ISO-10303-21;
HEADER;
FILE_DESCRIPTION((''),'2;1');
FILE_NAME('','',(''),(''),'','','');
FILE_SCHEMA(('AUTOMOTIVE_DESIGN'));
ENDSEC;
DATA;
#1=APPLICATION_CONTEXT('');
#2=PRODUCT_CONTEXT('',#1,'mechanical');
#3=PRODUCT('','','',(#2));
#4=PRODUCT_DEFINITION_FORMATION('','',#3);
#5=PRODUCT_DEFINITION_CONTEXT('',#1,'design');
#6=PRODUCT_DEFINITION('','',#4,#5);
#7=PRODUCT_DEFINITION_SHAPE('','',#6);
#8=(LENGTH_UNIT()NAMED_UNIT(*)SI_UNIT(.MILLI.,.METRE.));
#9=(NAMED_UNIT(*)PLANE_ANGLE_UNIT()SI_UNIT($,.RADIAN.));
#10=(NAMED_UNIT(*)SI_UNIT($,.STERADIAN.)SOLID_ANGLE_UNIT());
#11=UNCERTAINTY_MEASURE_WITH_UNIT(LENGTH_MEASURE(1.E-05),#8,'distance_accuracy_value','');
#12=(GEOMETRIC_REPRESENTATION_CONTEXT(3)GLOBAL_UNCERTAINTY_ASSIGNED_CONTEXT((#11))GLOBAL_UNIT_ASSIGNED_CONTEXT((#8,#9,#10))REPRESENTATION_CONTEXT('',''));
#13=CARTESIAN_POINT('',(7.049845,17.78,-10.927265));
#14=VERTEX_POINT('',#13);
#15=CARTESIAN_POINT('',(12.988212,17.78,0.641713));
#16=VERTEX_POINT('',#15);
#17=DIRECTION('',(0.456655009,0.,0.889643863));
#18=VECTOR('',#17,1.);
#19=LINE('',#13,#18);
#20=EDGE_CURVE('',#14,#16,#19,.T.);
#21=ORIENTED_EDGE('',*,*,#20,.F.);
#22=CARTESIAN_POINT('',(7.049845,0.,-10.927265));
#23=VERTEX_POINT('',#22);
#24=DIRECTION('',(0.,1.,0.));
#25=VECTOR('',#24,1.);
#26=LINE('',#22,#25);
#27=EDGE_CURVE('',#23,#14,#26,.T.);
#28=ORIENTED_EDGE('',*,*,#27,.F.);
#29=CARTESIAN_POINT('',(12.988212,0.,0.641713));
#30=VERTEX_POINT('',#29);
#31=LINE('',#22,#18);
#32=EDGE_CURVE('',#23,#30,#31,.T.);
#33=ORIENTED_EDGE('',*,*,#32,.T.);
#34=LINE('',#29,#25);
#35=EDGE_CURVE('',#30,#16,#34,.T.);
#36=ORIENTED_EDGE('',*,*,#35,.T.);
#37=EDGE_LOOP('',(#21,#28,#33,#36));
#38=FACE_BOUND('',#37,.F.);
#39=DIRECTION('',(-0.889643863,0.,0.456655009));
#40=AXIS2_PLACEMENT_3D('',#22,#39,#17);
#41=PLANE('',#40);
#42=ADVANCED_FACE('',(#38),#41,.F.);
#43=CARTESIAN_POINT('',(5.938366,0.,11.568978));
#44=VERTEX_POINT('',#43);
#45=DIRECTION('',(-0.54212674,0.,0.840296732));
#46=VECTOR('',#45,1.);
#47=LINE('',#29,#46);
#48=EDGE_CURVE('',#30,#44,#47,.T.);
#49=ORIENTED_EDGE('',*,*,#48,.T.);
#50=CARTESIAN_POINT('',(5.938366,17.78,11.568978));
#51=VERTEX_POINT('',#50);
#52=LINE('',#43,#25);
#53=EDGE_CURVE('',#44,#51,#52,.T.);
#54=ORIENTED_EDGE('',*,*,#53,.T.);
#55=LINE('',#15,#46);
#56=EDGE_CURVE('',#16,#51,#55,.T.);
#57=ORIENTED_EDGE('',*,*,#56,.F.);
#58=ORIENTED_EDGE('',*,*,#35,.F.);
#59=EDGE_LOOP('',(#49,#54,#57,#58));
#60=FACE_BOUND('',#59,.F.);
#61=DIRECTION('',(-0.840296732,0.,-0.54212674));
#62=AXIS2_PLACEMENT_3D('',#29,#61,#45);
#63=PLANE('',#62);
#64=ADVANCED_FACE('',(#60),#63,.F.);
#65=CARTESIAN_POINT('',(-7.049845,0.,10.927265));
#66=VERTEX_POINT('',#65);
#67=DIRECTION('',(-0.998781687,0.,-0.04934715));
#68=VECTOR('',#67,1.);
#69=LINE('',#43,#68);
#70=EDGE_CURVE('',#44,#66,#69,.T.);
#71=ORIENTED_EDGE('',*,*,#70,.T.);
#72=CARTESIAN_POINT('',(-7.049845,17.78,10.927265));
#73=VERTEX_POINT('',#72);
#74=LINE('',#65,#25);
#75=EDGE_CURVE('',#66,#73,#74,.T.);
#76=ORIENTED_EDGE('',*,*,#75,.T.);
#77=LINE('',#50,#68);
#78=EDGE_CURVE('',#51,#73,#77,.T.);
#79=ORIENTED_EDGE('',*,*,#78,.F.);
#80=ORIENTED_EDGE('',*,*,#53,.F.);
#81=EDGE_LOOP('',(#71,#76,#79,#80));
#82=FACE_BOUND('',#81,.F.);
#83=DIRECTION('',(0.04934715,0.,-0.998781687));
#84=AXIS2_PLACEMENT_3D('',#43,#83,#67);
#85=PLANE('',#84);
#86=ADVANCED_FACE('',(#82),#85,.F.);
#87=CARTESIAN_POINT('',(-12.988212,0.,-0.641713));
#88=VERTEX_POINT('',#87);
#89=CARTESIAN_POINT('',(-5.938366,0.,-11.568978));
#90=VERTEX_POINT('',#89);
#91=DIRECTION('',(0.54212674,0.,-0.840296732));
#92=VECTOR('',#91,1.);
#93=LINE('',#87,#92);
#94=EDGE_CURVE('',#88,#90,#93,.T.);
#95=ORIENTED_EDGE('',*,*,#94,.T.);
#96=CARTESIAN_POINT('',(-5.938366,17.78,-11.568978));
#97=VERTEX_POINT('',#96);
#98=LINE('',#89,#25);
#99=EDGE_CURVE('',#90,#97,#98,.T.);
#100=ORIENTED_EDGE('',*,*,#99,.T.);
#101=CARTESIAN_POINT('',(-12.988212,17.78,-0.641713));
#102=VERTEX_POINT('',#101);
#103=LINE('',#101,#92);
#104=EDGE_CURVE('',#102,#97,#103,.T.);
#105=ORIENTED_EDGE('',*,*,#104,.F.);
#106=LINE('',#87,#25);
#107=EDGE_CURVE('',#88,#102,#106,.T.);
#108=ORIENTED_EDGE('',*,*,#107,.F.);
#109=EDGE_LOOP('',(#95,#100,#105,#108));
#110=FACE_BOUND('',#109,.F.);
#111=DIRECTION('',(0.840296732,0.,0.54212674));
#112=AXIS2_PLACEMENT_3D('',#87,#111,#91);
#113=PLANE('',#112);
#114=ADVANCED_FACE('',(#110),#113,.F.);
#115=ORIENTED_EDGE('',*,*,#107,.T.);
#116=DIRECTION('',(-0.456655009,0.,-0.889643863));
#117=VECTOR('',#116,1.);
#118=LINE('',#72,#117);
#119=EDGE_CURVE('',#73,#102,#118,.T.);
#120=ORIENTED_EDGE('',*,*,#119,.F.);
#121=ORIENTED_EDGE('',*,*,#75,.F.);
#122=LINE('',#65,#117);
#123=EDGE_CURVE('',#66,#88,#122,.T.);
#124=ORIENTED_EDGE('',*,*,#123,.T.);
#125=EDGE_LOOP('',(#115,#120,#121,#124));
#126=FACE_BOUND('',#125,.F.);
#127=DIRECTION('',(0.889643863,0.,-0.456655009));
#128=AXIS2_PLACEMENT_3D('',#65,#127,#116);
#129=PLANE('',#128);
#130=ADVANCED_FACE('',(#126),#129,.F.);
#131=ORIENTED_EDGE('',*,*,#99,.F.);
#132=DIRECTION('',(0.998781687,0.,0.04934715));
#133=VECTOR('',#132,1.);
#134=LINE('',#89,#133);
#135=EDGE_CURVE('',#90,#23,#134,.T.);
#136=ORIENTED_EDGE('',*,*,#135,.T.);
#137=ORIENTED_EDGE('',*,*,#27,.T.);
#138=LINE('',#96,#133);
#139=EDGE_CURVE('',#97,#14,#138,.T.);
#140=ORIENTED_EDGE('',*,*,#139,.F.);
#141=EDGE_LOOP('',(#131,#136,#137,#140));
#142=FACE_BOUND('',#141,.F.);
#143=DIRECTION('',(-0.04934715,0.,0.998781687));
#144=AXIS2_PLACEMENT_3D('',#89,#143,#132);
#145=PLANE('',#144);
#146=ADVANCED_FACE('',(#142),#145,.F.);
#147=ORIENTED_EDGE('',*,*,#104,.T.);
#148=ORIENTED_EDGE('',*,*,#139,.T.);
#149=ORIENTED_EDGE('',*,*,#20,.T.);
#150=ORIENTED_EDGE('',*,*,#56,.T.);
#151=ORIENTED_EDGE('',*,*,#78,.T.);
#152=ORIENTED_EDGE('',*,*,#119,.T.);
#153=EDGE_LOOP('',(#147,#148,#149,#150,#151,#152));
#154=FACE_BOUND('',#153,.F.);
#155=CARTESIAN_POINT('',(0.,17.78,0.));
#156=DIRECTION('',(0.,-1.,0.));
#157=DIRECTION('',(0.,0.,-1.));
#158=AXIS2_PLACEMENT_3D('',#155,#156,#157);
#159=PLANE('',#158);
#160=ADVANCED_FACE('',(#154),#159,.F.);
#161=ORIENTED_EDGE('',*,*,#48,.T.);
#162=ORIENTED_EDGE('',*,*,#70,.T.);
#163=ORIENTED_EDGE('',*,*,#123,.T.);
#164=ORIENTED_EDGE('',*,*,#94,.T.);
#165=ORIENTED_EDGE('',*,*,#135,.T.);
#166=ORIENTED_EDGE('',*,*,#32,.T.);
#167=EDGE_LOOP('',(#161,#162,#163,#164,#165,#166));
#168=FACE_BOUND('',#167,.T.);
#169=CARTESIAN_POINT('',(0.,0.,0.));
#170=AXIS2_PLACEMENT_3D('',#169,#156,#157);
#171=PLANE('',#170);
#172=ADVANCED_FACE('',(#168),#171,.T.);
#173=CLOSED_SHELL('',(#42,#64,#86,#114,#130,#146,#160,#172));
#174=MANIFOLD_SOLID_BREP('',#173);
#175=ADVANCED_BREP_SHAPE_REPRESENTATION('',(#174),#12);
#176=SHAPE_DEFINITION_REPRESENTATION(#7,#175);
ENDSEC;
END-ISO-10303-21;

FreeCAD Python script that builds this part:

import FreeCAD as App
import Part
import Sketcher

V = App.Vector
Q = App.Units.Quantity


def add_polygon(sketch, points):
    """Adds a closed chain of lines whose ends are joined by coincident constraints."""
    first, n = sketch.GeometryCount, len(points)
    for a, b in zip(points, points[1:] + points[:1]):
        sketch.addGeometry(Part.LineSegment(App.Vector(*a, 0), App.Vector(*b, 0)), False)
    for i in range(n):
        sketch.addConstraint(Sketcher.Constraint("Coincident", first + i, 2, first + (i + 1) % n, 1))

doc = App.newDocument("Part")
params = doc.addObject("Spreadsheet::Sheet", "Params")
for row, (alias, value) in enumerate([
    ("sketch2_height", "0.7 in"),
], start=1):
    params.set(f"A{row}", alias)
    params.set(f"B{row}", "=" + value)
    params.setAlias(f"B{row}", alias)

body = doc.addObject("PartDesign::Body", "Body")

sketch1 = doc.addObject("Sketcher::SketchObject", "Sketch")
body.addObject(sketch1)
sketch1.AttachmentSupport = (doc.XZ_Plane, [""])
sketch1.MapMode = "FlatFace"
add_polygon(sketch1, [(12.988212, 0.641713), (5.938366, 11.568978), (-7.049845, 10.927265), (-12.988212, -0.641713), (-5.938366, -11.568978), (7.049845, -10.927265)])
sketch1.addConstraint([
    Sketcher.Constraint("Symmetric", 0, 2, 3, 2, -1, 1),
    Sketcher.Constraint("Symmetric", 1, 2, 4, 2, -1, 1),
    Sketcher.Constraint("Symmetric", 2, 2, 5, 2, -1, 1),
    Sketcher.Constraint("Equal", 0, 1),
    Sketcher.Constraint("Equal", 1, 2),
    Sketcher.Constraint("DistanceX", 2, 2, 4, 2, Q("0.7888999 in")),
    Sketcher.Constraint("DistanceX", 1, 2, 0, 2, 12.988211),
    Sketcher.Constraint("DistanceY", 2, 2, 0, 2, 12.210691),
    Sketcher.Constraint("DistanceX", 1, 2, 3, 2, 1.111479),
])

sketch2 = doc.addObject("Sketcher::SketchObject", "Sketch001")
body.addObject(sketch2)
sketch2.AttachmentSupport = (doc.XY_Plane, [""])
sketch2.MapMode = "FlatFace"
sketch2.addGeometry(Part.LineSegment(V(0, 0, 0), V(0, 17.78, 0)), False)
sketch2.addConstraint([
    Sketcher.Constraint("Vertical", 0),
    Sketcher.Constraint("Coincident", 0, 1, -1, 1),
    Sketcher.Constraint("DistanceY", 0, 1, 0, 2, Q("0.7 in")),
])
sketch2.setExpression("Constraints[2]", "Params.sketch2_height")
doc.recompute()

additivepipe = doc.addObject("PartDesign::AdditivePipe", "AdditivePipe")
body.addObject(additivepipe)
additivepipe.Profile = sketch1
additivepipe.Spine = (sketch2, ["Edge1"])

doc.recompute()
